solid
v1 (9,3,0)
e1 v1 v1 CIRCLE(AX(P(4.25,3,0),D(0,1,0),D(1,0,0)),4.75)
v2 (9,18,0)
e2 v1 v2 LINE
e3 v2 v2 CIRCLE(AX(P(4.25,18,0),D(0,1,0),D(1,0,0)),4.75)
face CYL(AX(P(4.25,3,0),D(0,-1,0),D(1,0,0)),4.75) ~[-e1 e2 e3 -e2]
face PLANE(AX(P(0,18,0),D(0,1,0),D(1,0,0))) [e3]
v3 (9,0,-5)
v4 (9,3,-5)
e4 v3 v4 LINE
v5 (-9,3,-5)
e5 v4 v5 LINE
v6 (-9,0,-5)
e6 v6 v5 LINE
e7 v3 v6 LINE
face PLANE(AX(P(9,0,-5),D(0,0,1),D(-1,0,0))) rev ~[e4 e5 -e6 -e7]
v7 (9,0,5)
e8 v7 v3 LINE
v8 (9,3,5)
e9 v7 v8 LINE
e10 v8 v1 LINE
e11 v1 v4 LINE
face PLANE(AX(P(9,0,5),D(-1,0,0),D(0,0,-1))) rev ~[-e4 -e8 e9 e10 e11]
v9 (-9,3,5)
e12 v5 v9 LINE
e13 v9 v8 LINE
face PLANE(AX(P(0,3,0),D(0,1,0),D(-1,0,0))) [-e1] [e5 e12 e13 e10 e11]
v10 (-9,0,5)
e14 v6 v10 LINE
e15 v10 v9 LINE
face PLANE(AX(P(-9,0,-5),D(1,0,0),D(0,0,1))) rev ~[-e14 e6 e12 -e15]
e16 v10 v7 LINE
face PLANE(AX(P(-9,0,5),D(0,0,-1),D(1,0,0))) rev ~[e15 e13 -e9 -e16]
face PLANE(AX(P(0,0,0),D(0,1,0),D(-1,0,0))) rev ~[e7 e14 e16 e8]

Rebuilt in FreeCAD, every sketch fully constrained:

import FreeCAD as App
import Part
import Sketcher
Q = App.Units.Quantity

doc = App.newDocument("Part")
body = doc.addObject("PartDesign::Body", "Body")

sketch1 = body.newObject("Sketcher::SketchObject", "Sketch")
sketch1.AttachmentSupport = (doc.getObject("XZ_Plane"), [""])
sketch1.MapMode = "FlatFace"
sketch1.addGeometry(Part.LineSegment(App.Vector(-9, -5, 0), App.Vector(-9, 5, 0)), False)
sketch1.addGeometry(Part.LineSegment(App.Vector(-9, 5, 0), App.Vector(9, 5, 0)), False)
sketch1.addGeometry(Part.LineSegment(App.Vector(9, 5, 0), App.Vector(9, -5, 0)), False)
sketch1.addGeometry(Part.LineSegment(App.Vector(9, -5, 0), App.Vector(-9, -5, 0)), False)
sketch1.addConstraint(Sketcher.Constraint("Coincident", 0, 2, 1, 1))
sketch1.addConstraint(Sketcher.Constraint("Coincident", 1, 2, 2, 1))
sketch1.addConstraint(Sketcher.Constraint("Coincident", 2, 2, 3, 1))
sketch1.addConstraint(Sketcher.Constraint("Coincident", 3, 2, 0, 1))
sketch1.addConstraint(Sketcher.Constraint("Vertical", 0))
sketch1.addConstraint(Sketcher.Constraint("Horizontal", 1))
sketch1.addConstraint(Sketcher.Constraint("Vertical", 2))
sketch1.addConstraint(Sketcher.Constraint("Horizontal", 3))
sketch1.addConstraint(Sketcher.Constraint("Symmetric", 0, 2, 2, 2, -1, 1))
sketch1.addConstraint(Sketcher.Constraint("DistanceX", 1, 1, 1, 2, Q("18 mm")))
sketch1.addConstraint(Sketcher.Constraint("DistanceY", 0, 1, 0, 2, Q("10 mm")))
pad1 = body.newObject("PartDesign::Pad", "Pad")
pad1.Profile = sketch1
pad1.Length = 3
pad1.Reversed = True

sketch2 = body.newObject("Sketcher::SketchObject", "Sketch001")
sketch2.AttachmentSupport = (doc.getObject("XZ_Plane"), [""])
sketch2.MapMode = "FlatFace"
sketch2.AttachmentOffset = App.Placement(App.Vector(0, 0, -3), App.Rotation())
sketch2.addGeometry(Part.Circle(App.Vector(4.25, 0, 0), App.Vector(0, 0, 1), 4.75), False)
sketch2.addConstraint(Sketcher.Constraint("PointOnObject", 0, 3, -1))
sketch2.addConstraint(Sketcher.Constraint("Diameter", 0, Q("9.5 mm")))
sketch2.addConstraint(Sketcher.Constraint("DistanceX", -1, 1, 0, 3, Q("4.25 mm")))
pad2 = body.newObject("PartDesign::Pad", "Pad001")
pad2.Profile = sketch2
pad2.Length = 15
pad2.Reversed = True

doc.recompute()
